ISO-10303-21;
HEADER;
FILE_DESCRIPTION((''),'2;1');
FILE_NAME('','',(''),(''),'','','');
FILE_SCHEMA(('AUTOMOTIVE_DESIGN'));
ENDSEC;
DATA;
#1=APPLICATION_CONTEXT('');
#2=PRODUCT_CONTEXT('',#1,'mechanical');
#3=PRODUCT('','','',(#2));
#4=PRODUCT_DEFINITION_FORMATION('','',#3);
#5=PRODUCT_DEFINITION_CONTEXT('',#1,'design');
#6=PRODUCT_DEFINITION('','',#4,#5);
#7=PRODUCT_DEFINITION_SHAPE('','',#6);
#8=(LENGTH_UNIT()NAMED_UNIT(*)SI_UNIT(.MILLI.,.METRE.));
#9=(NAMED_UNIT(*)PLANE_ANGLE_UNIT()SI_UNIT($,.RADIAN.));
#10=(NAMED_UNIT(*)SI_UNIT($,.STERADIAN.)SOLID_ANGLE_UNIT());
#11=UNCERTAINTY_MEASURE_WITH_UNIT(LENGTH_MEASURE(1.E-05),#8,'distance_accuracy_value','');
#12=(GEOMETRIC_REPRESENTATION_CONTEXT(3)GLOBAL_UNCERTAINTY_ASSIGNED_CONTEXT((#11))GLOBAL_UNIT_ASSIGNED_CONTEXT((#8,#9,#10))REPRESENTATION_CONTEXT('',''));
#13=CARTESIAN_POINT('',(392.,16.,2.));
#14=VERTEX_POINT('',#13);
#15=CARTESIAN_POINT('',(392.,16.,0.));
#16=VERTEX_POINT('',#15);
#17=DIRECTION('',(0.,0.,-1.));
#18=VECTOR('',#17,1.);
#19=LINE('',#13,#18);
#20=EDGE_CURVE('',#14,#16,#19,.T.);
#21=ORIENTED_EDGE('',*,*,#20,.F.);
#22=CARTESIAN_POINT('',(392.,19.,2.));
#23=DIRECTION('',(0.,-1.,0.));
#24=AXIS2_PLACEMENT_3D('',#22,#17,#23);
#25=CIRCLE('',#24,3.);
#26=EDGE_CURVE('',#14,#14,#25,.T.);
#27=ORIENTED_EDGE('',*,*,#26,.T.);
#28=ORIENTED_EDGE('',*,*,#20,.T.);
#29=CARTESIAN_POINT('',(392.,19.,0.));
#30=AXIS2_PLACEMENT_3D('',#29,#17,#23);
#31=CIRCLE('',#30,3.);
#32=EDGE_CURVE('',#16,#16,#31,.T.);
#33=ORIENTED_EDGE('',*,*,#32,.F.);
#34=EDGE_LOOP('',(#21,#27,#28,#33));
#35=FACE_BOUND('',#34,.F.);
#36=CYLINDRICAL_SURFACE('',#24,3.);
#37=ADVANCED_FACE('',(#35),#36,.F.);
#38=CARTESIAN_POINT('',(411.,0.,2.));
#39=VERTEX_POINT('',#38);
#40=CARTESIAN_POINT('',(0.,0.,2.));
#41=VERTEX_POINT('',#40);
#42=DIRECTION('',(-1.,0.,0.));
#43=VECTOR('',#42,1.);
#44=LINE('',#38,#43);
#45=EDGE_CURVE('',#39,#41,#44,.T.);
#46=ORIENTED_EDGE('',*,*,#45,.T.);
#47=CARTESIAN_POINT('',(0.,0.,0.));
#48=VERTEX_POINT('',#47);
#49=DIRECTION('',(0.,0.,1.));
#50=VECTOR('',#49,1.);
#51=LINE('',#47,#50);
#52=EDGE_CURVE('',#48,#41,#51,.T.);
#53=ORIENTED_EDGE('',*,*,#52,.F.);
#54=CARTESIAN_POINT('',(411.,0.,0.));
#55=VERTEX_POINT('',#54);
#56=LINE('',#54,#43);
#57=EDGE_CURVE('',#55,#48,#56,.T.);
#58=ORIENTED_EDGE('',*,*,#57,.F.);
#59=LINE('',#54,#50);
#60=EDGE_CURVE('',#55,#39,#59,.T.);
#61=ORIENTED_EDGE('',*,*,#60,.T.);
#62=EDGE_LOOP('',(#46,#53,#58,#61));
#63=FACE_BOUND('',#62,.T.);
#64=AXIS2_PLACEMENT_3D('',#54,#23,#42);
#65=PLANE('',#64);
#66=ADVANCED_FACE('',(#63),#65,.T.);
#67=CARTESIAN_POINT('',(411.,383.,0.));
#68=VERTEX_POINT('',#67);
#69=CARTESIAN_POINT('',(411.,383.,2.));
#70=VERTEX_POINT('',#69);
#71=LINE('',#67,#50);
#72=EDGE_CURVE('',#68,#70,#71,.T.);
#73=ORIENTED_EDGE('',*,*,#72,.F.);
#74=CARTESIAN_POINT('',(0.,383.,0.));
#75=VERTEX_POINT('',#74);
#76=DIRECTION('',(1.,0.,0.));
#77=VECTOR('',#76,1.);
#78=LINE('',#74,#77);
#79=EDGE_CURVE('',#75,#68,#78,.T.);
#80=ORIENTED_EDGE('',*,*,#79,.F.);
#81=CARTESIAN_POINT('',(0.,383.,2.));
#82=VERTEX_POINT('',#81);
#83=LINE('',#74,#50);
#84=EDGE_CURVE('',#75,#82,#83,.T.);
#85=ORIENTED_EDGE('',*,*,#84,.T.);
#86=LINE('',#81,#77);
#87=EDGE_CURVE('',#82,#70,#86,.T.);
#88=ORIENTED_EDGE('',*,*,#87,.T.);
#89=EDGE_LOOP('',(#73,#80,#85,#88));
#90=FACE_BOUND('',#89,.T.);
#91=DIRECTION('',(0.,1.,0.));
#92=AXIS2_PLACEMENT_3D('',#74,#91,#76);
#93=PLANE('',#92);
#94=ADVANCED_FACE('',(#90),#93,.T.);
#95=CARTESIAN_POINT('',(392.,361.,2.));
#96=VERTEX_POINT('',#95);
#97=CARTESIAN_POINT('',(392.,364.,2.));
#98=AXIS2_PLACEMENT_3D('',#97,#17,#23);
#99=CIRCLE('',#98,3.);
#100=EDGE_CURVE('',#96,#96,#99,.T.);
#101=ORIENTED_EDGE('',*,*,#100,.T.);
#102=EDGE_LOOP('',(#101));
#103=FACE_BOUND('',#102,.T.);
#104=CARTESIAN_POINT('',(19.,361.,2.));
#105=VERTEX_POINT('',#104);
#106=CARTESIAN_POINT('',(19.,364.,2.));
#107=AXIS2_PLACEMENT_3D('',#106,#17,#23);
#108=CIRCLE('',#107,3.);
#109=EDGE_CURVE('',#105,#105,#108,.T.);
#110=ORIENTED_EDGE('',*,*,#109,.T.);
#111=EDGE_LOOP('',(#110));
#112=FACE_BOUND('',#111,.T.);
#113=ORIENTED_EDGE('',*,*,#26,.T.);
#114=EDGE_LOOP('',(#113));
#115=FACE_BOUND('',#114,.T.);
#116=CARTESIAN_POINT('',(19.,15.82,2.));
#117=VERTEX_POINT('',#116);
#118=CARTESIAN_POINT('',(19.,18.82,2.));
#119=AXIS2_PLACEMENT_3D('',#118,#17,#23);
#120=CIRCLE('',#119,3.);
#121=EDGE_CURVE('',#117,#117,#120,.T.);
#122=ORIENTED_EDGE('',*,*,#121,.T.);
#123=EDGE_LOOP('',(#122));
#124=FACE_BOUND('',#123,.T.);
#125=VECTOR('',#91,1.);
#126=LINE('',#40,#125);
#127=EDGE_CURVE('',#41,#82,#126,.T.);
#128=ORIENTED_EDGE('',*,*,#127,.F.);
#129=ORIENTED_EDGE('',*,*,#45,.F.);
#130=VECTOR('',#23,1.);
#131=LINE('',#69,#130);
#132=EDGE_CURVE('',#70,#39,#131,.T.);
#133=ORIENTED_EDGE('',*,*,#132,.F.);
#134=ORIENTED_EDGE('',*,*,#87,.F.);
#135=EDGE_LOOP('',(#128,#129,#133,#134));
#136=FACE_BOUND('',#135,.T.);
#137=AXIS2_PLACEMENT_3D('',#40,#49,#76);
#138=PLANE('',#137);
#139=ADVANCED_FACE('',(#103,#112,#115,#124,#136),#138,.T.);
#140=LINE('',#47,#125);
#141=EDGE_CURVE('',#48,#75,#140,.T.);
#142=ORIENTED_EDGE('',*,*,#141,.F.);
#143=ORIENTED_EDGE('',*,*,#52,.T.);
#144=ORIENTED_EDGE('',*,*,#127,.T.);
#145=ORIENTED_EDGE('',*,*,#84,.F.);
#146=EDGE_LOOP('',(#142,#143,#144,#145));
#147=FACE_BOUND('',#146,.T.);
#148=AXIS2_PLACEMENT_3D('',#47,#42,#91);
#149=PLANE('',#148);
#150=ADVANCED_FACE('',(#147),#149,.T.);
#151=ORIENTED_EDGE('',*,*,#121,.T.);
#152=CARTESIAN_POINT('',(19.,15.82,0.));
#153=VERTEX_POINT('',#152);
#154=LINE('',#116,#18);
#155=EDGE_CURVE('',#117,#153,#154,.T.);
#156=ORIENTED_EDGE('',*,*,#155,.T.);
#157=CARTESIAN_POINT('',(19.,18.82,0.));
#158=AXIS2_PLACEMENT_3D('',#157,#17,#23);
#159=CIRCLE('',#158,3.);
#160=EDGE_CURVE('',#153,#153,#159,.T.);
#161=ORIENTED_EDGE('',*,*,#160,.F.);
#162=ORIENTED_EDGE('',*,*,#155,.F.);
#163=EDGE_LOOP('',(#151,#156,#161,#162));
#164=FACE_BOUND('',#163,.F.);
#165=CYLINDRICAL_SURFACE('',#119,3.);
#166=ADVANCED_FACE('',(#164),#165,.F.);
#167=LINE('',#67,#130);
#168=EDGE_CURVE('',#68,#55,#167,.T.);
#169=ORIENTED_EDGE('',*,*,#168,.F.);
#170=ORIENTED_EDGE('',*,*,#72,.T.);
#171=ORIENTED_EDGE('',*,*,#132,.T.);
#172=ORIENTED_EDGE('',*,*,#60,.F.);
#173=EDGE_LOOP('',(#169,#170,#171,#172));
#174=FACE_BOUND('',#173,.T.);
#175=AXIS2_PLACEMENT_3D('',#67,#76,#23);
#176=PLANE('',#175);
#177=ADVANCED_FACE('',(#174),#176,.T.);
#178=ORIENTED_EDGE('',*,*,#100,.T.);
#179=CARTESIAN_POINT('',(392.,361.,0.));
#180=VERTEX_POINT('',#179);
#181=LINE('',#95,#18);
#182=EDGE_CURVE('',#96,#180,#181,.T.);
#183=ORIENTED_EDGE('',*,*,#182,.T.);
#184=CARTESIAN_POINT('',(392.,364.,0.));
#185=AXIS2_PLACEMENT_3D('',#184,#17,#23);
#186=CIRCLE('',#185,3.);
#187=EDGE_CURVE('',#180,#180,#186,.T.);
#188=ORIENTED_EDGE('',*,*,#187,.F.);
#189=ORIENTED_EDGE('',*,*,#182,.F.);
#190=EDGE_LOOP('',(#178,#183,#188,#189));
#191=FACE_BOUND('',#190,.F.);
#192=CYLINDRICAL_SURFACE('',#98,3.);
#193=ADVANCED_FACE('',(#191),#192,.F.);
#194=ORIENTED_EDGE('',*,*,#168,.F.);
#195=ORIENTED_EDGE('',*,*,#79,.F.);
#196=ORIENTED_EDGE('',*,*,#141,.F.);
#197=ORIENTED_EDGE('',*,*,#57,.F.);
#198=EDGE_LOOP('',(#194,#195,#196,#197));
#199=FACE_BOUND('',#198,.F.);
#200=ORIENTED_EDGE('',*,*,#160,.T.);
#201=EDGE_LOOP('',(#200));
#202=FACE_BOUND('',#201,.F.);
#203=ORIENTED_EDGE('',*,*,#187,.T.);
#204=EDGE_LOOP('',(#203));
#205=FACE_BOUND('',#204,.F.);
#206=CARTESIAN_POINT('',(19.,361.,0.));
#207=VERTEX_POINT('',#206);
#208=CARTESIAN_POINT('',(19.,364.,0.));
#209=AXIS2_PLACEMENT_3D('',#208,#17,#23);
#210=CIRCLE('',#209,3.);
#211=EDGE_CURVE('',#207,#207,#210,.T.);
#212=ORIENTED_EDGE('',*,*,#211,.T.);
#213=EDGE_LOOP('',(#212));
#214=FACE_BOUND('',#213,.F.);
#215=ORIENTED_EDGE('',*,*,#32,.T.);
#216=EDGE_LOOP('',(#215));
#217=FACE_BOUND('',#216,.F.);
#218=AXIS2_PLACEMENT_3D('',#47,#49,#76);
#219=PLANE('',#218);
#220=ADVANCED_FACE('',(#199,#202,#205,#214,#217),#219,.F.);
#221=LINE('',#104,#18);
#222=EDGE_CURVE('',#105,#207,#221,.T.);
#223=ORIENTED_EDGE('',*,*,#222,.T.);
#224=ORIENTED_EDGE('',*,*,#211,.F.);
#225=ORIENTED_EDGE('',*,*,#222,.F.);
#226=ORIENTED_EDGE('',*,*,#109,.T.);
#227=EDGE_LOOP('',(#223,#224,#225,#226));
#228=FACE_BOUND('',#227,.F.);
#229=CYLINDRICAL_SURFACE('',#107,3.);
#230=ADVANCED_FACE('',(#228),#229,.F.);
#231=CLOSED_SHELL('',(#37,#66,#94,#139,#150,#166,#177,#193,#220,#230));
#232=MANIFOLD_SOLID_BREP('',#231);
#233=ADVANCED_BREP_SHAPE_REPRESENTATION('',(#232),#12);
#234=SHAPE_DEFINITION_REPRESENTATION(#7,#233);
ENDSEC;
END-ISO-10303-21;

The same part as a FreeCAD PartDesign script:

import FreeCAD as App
import Part
import Sketcher
from FreeCAD import Vector
Q = App.Units.Quantity

doc = App.newDocument("Part")
body = doc.addObject("PartDesign::Body", "Body")

sketch1 = body.newObject("Sketcher::SketchObject", "Sketch")
sketch1.AttachmentSupport = (doc.getObject("XY_Plane"), [""])
sketch1.MapMode = "FlatFace"
sketch1.addGeometry(Part.LineSegment(Vector(0, 383, 0), Vector(0, 0, 0)), False)
sketch1.addGeometry(Part.LineSegment(Vector(0, 0, 0), Vector(411, 0, 0)), False)
sketch1.addGeometry(Part.LineSegment(Vector(411, 0, 0), Vector(411, 383, 0)), False)
sketch1.addGeometry(Part.LineSegment(Vector(411, 383, 0), Vector(0, 383, 0)), False)
sketch1.addConstraint(Sketcher.Constraint("Coincident", 0, 2, 1, 1))
sketch1.addConstraint(Sketcher.Constraint("Coincident", 1, 2, 2, 1))
sketch1.addConstraint(Sketcher.Constraint("Coincident", 2, 2, 3, 1))
sketch1.addConstraint(Sketcher.Constraint("Coincident", 3, 2, 0, 1))
sketch1.addConstraint(Sketcher.Constraint("Vertical", 0))
sketch1.addConstraint(Sketcher.Constraint("Horizontal", 1))
sketch1.addConstraint(Sketcher.Constraint("Vertical", 2))
sketch1.addConstraint(Sketcher.Constraint("Horizontal", 3))
sketch1.addConstraint(Sketcher.Constraint("Coincident", 0, 2, -1, 1))
sketch1.addConstraint(Sketcher.Constraint("DistanceX", 1, 1, 1, 2, Q("411 mm")))
sketch1.addConstraint(Sketcher.Constraint("DistanceY", 0, 2, 0, 1, Q("383 mm")))
pad1 = body.newObject("PartDesign::Pad", "Pad")
pad1.Profile = sketch1
pad1.Length = 2

sketch2 = body.newObject("Sketcher::SketchObject", "Sketch001")
sketch2.AttachmentSupport = (doc.getObject("XY_Plane"), [""])
sketch2.MapMode = "FlatFace"
sketch2.AttachmentOffset = App.Placement(Vector(0, 0, 2), App.Rotation())
sketch2.addGeometry(Part.Circle(Vector(19, 18.8, 0), Vector(0, 0, 1), 3), False)
sketch2.addConstraint(Sketcher.Constraint("Diameter", 0, Q("6 mm")))
sketch2.addConstraint(Sketcher.Constraint("DistanceX", -1, 1, 0, 3, Q("19 mm")))
sketch2.addConstraint(Sketcher.Constraint("DistanceY", -1, 1, 0, 3, Q("18.82 mm")))
doc.recompute()
hole = body.newObject("PartDesign::Hole", "Hole")
hole.Profile = sketch2
hole.ThreadType = "None"
hole.Diameter = 6
hole.DepthType = "ThroughAll"

sketch3 = body.newObject("Sketcher::SketchObject", "Sketch002")
sketch3.AttachmentSupport = (doc.getObject("XY_Plane"), [""])
sketch3.MapMode = "FlatFace"
sketch3.AttachmentOffset = App.Placement(Vector(0, 0, 2), App.Rotation())
sketch3.addGeometry(Part.Circle(Vector(392, 19, 0), Vector(0, 0, 1), 3), False)
sketch3.addConstraint(Sketcher.Constraint("Diameter", 0, Q("6 mm")))
sketch3.addConstraint(Sketcher.Constraint("DistanceX", -1, 1, 0, 3, Q("392 mm")))
sketch3.addConstraint(Sketcher.Constraint("DistanceY", -1, 1, 0, 3, Q("19 mm")))
doc.recompute()
hole2 = body.newObject("PartDesign::Hole", "Hole001")
hole2.Profile = sketch3
hole2.ThreadType = "None"
hole2.Diameter = 6
hole2.DepthType = "ThroughAll"

sketch4 = body.newObject("Sketcher::SketchObject", "Sketch003")
sketch4.AttachmentSupport = (doc.getObject("XY_Plane"), [""])
sketch4.MapMode = "FlatFace"
sketch4.AttachmentOffset = App.Placement(Vector(0, 0, 2), App.Rotation())
sketch4.addGeometry(Part.Circle(Vector(19, 364, 0), Vector(0, 0, 1), 3), False)
sketch4.addConstraint(Sketcher.Constraint("Diameter", 0, Q("6 mm")))
sketch4.addConstraint(Sketcher.Constraint("DistanceX", -1, 1, 0, 3, Q("19 mm")))
sketch4.addConstraint(Sketcher.Constraint("DistanceY", -1, 1, 0, 3, Q("364 mm")))
doc.recompute()
hole3 = body.newObject("PartDesign::Hole", "Hole002")
hole3.Profile = sketch4
hole3.ThreadType = "None"
hole3.Diameter = 6
hole3.DepthType = "ThroughAll"

sketch5 = body.newObject("Sketcher::SketchObject", "Sketch004")
sketch5.AttachmentSupport = (doc.getObject("XY_Plane"), [""])
sketch5.MapMode = "FlatFace"
sketch5.AttachmentOffset = App.Placement(Vector(0, 0, 2), App.Rotation())
sketch5.addGeometry(Part.Circle(Vector(392, 364, 0), Vector(0, 0, 1), 3), False)
sketch5.addConstraint(Sketcher.Constraint("Diameter", 0, Q("6 mm")))
sketch5.addConstraint(Sketcher.Constraint("DistanceX", -1, 1, 0, 3, Q("392 mm")))
sketch5.addConstraint(Sketcher.Constraint("DistanceY", -1, 1, 0, 3, Q("364 mm")))
doc.recompute()
hole4 = body.newObject("PartDesign::Hole", "Hole003")
hole4.Profile = sketch5
hole4.ThreadType = "None"
hole4.Diameter = 6
hole4.DepthType = "ThroughAll"

doc.recompute()
